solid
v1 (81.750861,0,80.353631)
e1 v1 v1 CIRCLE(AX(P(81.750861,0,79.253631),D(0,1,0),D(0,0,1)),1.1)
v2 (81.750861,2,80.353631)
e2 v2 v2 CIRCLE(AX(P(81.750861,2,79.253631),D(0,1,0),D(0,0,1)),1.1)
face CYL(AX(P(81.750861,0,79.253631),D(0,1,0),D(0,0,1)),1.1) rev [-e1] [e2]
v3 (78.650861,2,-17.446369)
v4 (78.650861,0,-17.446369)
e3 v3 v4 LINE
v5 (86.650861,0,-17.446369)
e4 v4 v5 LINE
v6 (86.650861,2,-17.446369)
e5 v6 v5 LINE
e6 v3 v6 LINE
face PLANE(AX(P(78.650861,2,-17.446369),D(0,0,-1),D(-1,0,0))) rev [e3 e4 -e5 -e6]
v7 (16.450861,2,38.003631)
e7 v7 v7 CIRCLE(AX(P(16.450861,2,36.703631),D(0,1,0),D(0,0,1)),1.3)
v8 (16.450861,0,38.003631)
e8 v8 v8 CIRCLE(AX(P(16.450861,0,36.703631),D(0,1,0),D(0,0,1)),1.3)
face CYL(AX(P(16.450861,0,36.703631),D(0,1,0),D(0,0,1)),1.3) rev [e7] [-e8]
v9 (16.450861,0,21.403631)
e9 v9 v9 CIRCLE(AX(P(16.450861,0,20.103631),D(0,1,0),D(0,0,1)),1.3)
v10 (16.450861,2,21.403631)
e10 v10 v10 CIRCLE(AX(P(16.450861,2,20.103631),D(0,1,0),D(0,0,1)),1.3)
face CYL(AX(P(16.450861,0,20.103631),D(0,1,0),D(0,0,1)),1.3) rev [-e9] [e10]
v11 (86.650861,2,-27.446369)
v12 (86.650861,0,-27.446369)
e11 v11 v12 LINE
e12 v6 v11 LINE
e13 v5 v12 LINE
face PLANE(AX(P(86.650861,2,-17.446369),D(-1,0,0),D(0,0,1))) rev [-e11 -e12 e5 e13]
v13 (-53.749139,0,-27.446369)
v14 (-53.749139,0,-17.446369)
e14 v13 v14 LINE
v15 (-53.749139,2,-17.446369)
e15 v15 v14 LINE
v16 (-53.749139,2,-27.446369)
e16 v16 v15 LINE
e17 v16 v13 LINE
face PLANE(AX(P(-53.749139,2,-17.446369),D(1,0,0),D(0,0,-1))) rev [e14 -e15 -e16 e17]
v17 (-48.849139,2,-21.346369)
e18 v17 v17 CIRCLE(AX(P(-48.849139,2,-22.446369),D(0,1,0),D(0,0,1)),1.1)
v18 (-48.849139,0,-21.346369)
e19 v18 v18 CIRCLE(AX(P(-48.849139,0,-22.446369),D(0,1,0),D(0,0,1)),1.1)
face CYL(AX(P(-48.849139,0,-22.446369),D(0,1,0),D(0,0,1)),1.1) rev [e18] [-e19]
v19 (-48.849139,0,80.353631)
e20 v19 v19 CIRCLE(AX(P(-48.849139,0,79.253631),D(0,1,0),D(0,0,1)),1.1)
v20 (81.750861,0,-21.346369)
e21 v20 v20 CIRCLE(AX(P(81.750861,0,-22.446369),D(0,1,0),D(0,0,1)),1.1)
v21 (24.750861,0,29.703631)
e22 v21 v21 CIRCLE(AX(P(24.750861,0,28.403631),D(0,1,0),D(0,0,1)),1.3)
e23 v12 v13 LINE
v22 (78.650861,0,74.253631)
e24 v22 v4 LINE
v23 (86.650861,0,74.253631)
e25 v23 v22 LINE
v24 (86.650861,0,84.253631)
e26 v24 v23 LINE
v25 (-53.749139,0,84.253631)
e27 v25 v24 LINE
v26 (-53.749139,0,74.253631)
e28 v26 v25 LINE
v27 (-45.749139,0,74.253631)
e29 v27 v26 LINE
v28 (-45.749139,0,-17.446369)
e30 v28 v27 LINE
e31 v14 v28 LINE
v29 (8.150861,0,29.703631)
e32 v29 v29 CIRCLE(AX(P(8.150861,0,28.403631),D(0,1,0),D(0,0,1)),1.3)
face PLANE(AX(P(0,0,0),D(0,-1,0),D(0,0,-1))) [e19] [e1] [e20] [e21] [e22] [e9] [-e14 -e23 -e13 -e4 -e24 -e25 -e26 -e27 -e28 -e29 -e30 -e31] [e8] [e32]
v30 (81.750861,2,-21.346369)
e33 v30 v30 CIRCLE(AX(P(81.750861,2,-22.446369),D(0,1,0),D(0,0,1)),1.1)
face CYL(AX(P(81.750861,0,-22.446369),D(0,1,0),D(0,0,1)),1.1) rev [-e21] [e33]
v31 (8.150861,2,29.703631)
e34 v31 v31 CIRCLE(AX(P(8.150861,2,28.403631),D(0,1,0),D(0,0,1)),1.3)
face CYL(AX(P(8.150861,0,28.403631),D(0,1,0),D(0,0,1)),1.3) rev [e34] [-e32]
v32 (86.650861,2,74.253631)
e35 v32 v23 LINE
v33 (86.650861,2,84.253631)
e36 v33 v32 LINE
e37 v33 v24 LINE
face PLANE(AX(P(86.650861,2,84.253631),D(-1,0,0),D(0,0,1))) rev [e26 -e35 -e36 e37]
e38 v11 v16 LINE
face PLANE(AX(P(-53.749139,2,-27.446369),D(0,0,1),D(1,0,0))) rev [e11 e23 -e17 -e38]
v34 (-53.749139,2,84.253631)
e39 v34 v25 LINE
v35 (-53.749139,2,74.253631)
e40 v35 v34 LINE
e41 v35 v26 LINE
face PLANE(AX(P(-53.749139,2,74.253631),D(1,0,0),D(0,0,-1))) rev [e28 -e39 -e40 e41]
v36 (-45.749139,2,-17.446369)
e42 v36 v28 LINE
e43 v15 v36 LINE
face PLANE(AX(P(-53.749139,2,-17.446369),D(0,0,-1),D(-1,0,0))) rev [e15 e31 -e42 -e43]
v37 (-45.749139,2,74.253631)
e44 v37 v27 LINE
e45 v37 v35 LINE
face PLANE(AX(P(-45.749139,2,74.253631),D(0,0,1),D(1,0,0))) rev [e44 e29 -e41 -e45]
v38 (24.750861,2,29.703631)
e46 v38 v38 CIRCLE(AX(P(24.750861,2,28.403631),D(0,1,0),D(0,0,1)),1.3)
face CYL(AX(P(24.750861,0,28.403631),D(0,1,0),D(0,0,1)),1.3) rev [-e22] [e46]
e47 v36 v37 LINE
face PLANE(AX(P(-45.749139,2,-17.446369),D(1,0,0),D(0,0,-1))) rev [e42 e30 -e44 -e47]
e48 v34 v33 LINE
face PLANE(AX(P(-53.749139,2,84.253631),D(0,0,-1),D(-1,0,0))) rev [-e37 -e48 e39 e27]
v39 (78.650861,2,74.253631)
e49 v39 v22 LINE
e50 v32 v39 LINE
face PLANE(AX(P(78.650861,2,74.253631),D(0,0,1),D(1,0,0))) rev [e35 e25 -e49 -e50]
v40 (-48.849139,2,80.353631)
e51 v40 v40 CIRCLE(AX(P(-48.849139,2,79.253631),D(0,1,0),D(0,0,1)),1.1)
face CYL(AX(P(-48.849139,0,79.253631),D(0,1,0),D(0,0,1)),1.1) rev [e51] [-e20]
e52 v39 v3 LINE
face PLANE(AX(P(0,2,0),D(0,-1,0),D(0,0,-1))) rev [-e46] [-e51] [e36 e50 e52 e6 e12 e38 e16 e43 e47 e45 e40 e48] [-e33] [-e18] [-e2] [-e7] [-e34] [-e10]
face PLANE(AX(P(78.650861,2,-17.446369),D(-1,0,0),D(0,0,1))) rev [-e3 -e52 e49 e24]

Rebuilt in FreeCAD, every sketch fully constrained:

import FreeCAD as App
import Part
import Sketcher
Q = App.Units.Quantity


def add_polygon(sketch, points):
    """Adds a closed chain of lines whose ends are joined by coincident constraints."""
    first, n = sketch.GeometryCount, len(points)
    for a, b in zip(points, points[1:] + points[:1]):
        sketch.addGeometry(Part.LineSegment(App.Vector(*a, 0), App.Vector(*b, 0)), False)
    for i in range(n):
        sketch.addConstraint(Sketcher.Constraint("Coincident", first + i, 2, first + (i + 1) % n, 1))

doc = App.newDocument("Part")
body = doc.addObject("PartDesign::Body", "Body")

# Sketch on XZ plane
sketch1 = doc.addObject("Sketcher::SketchObject", "Sketch")
body.addObject(sketch1)
sketch1.AttachmentSupport = (doc.XZ_Plane, [""])
sketch1.MapMode = "FlatFace"
add_polygon(sketch1, [(-54, -17), (-46, -17), (-46, 74), (-54, 74), (-54, 84), (87, 84), (87, 74), (79, 74), (79, -17), (87, -17), (87, -27), (-54, -27)])  # lines 0-11
sketch1.addConstraint(Sketcher.Constraint("Horizontal", 0))
sketch1.addConstraint(Sketcher.Constraint("Vertical", 1))
sketch1.addConstraint(Sketcher.Constraint("Horizontal", 2))
sketch1.addConstraint(Sketcher.Constraint("Vertical", 3))
sketch1.addConstraint(Sketcher.Constraint("Horizontal", 4))
sketch1.addConstraint(Sketcher.Constraint("Vertical", 5))
sketch1.addConstraint(Sketcher.Constraint("Horizontal", 6))
sketch1.addConstraint(Sketcher.Constraint("Vertical", 7))
sketch1.addConstraint(Sketcher.Constraint("Horizontal", 8))
sketch1.addConstraint(Sketcher.Constraint("Vertical", 9))
sketch1.addConstraint(Sketcher.Constraint("Horizontal", 10))
sketch1.addConstraint(Sketcher.Constraint("Vertical", 11))
sketch1.addConstraint(Sketcher.Constraint("Horizontal", 2, 2, 5, 2))
sketch1.addConstraint(Sketcher.Constraint("Horizontal", 0, 2, 7, 2))
sketch1.addConstraint(Sketcher.Constraint("Vertical", 5, 2, 8, 2))
sketch1.addConstraint(Sketcher.Constraint("Vertical", 3, 2, 10, 2))
sketch1.addConstraint(Sketcher.Constraint("Equal", 2, 6))
sketch1.addConstraint(Sketcher.Constraint("Equal", 5, 9))
sketch1.addConstraint(Sketcher.Constraint("DistanceX", 0, 1, 0, 2, Q("8 mm")))
sketch1.addConstraint(Sketcher.Constraint("DistanceY", 3, 1, 3, 2, Q("10 mm")))
sketch1.addConstraint(Sketcher.Constraint("DistanceX", 4, 1, 4, 2, Q("140.4 mm")))
sketch1.addConstraint(Sketcher.Constraint("DistanceY", 1, 1, 1, 2, Q("91.7 mm")))
sketch1.addConstraint(Sketcher.Constraint("DistanceX", 0, 2, -1, 1, Q("45.749139 mm")))
sketch1.addConstraint(Sketcher.Constraint("DistanceY", 0, 2, -1, 1, Q("17.446369 mm")))
pad1 = doc.addObject("PartDesign::Pad", "Pad")
body.addObject(pad1)
pad1.Profile = sketch1
pad1.Length = 2
pad1.Reversed = True

# Sketch on XZ plane
sketch2 = doc.addObject("Sketcher::SketchObject", "Sketch001")
body.addObject(sketch2)
sketch2.AttachmentSupport = (doc.XZ_Plane, [""])
sketch2.MapMode = "FlatFace"
sketch2.AttachmentOffset = App.Placement(App.Vector(0, 0, -2), App.Rotation())
sketch2.addGeometry(Part.Circle(App.Vector(-48.8, 79.3, 0), App.Vector(0, 0, 1), 1.1), False)
sketch2.addGeometry(Part.Circle(App.Vector(-48.8, -22.4, 0), App.Vector(0, 0, 1), 1.1), False)
sketch2.addGeometry(Part.Circle(App.Vector(81.8, -22.4, 0), App.Vector(0, 0, 1), 1.1), False)
sketch2.addGeometry(Part.Circle(App.Vector(81.8, 79.3, 0), App.Vector(0, 0, 1), 1.1), False)
sketch2.addConstraint(Sketcher.Constraint("Equal", 0, 1))
sketch2.addConstraint(Sketcher.Constraint("Equal", 1, 2))
sketch2.addConstraint(Sketcher.Constraint("Equal", 2, 3))
sketch2.addConstraint(Sketcher.Constraint("Horizontal", 1, 3, 2, 3))
sketch2.addConstraint(Sketcher.Constraint("Horizontal", 0, 3, 3, 3))
sketch2.addConstraint(Sketcher.Constraint("Vertical", 0, 3, 1, 3))
sketch2.addConstraint(Sketcher.Constraint("Vertical", 2, 3, 3, 3))
sketch2.addConstraint(Sketcher.Constraint("Diameter", 0, Q("2.2 mm")))
sketch2.addConstraint(Sketcher.Constraint("DistanceY", 1, 3, 0, 3, Q("101.7 mm")))
sketch2.addConstraint(Sketcher.Constraint("DistanceX", 1, 3, 2, 3, Q("130.6 mm")))
sketch2.addConstraint(Sketcher.Constraint("DistanceX", 0, 3, -1, 1, Q("48.849139 mm")))
sketch2.addConstraint(Sketcher.Constraint("DistanceY", -1, 1, 0, 3, Q("79.253631 mm")))
pocket1 = doc.addObject("PartDesign::Pocket", "Pocket")
body.addObject(pocket1)
pocket1.Profile = sketch2
pocket1.Length = 2
pocket1.Reversed = True

# Sketch on XZ plane
sketch3 = doc.addObject("Sketcher::SketchObject", "Sketch002")
body.addObject(sketch3)
sketch3.AttachmentSupport = (doc.XZ_Plane, [""])
sketch3.MapMode = "FlatFace"
sketch3.AttachmentOffset = App.Placement(App.Vector(0, 0, -2), App.Rotation())
sketch3.addGeometry(Part.Circle(App.Vector(8.2, 28.4, 0), App.Vector(0, 0, 1), 1.3), False)
sketch3.addGeometry(Part.Circle(App.Vector(16.5, 36.7, 0), App.Vector(0, 0, 1), 1.3), False)
sketch3.addGeometry(Part.Circle(App.Vector(24.8, 28.4, 0), App.Vector(0, 0, 1), 1.3), False)
sketch3.addGeometry(Part.Circle(App.Vector(16.5, 20.1, 0), App.Vector(0, 0, 1), 1.3), False)
sketch3.addConstraint(Sketcher.Constraint("Equal", 0, 1))
sketch3.addConstraint(Sketcher.Constraint("Equal", 1, 2))
sketch3.addConstraint(Sketcher.Constraint("Equal", 2, 3))
sketch3.addConstraint(Sketcher.Constraint("Horizontal", 0, 3, 2, 3))
sketch3.addConstraint(Sketcher.Constraint("Vertical", 1, 3, 3, 3))
sketch3.addConstraint(Sketcher.Constraint("Diameter", 0, Q("2.6 mm")))
sketch3.addConstraint(Sketcher.Constraint("DistanceX", 0, 3, 1, 3, Q("8.3 mm")))
sketch3.addConstraint(Sketcher.Constraint("DistanceY", 0, 3, 1, 3, Q("8.3 mm")))
sketch3.addConstraint(Sketcher.Constraint("DistanceX", 1, 3, 2, 3, Q("8.3 mm")))
sketch3.addConstraint(Sketcher.Constraint("DistanceY", 3, 3, 0, 3, Q("8.3 mm")))
sketch3.addConstraint(Sketcher.Constraint("DistanceX", -1, 1, 0, 3, Q("8.150861 mm")))
sketch3.addConstraint(Sketcher.Constraint("DistanceY", -1, 1, 0, 3, Q("28.403631 mm")))
pocket2 = doc.addObject("PartDesign::Pocket", "Pocket001")
body.addObject(pocket2)
pocket2.Profile = sketch3
pocket2.Length = 2
pocket2.Reversed = True

doc.recompute()
